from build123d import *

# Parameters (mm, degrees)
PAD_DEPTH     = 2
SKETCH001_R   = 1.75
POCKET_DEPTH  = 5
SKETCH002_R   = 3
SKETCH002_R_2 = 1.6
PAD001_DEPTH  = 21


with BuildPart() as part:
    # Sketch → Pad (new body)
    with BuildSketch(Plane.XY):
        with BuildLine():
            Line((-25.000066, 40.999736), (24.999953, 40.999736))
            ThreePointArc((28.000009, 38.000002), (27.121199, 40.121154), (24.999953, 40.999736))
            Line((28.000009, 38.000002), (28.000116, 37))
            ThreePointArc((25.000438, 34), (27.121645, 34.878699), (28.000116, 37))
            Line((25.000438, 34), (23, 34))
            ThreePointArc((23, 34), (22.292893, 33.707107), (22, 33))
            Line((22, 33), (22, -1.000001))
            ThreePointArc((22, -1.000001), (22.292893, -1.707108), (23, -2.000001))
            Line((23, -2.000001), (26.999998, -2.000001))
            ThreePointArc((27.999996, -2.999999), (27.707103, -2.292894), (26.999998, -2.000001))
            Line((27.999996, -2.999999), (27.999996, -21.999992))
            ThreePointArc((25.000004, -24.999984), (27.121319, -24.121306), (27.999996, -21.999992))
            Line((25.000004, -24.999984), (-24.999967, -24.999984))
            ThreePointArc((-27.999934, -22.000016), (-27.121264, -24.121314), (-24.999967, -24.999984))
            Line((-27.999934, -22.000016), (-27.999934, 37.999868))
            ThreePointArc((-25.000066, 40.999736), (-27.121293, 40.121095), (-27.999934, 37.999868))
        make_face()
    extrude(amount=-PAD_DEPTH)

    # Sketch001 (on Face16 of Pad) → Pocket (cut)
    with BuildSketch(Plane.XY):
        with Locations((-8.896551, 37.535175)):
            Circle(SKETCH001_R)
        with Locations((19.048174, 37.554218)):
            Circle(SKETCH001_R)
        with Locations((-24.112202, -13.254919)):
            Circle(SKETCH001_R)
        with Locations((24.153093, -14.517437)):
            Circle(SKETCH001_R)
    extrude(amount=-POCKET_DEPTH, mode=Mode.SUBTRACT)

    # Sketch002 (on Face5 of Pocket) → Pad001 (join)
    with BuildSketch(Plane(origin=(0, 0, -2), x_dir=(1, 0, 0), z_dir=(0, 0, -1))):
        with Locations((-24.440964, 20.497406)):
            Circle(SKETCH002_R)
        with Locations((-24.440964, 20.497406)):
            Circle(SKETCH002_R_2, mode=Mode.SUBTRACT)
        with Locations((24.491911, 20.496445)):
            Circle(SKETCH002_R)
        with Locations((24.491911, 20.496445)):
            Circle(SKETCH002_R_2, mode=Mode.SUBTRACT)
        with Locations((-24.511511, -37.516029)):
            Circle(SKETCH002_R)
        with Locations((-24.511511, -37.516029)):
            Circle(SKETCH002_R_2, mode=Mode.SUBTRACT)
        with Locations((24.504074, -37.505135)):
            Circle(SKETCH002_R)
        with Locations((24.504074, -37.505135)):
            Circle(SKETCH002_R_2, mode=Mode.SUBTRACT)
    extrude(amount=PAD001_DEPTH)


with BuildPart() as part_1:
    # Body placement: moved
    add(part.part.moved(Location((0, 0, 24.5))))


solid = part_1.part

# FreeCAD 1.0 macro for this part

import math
import FreeCAD as App
import Part
import Sketcher
Q = App.Units.Quantity

doc = App.newDocument("Part")
params = doc.addObject("Spreadsheet::Sheet", "Params")
for row, (alias, value) in enumerate([
    ("sketch1_radius", "0.999999 mm"),
    ("sketch1_width", "3.999998 mm"),
    ("sketch1_height", "34.000001 mm"),
    ("pad1_length", "2 mm"),
    ("sketch2_diameter", "3.5 mm"),
    ("pocket1_length", "5 mm"),
    ("sketch3_diameter", "6 mm"),
    ("sketch3_diameter2", "3.2 mm"),
    ("pad2_length", "21 mm"),
], start=1):
    params.set(f"A{row}", alias)
    params.set(f"B{row}", "=" + value)
    params.setAlias(f"B{row}", alias)

body = doc.addObject("PartDesign::Body", "Body")

# Sketch on XY plane
sketch1 = doc.addObject("Sketcher::SketchObject", "Sketch")
body.addObject(sketch1)
sketch1.AttachmentSupport = (doc.XY_Plane, [""])
sketch1.MapMode = "FlatFace"
sketch1.addGeometry(Part.LineSegment(App.Vector(24.999953, 40.999736, 0), App.Vector(-25.000066, 40.999736, 0)), False)
sketch1.addGeometry(Part.ArcOfCircle(Part.Circle(App.Vector(-25.000066, 37.999868, 0), App.Vector(0, 0, 1), 2.999868), math.radians(90), math.radians(180)), False)
sketch1.addGeometry(Part.LineSegment(App.Vector(-27.999934, 37.999868, 0), App.Vector(-27.999934, -22.000016, 0)), False)
sketch1.addGeometry(Part.ArcOfCircle(Part.Circle(App.Vector(-24.999967, -22.000017, 0), App.Vector(0, 0, 1), 2.999967), math.radians(179.999981), math.radians(269.999999)), False)
sketch1.addGeometry(Part.LineSegment(App.Vector(-24.999967, -24.999984, 0), App.Vector(25.000004, -24.999984, 0)), False)
sketch1.addGeometry(Part.ArcOfCircle(Part.Circle(App.Vector(25.000003, -21.999991, 0), App.Vector(0, 0, 1), 2.999993), math.radians(-89.999988), math.radians(-0.000012)), False)
sketch1.addGeometry(Part.LineSegment(App.Vector(27.999996, -21.999992, 0), App.Vector(27.999996, -2.999999, 0)), False)
sketch1.addGeometry(Part.ArcOfCircle(Part.Circle(App.Vector(26.999997, -3, 0), App.Vector(0, 0, 1), 0.999999), math.radians(0.000072), math.radians(89.999928)), False)
sketch1.addGeometry(Part.LineSegment(App.Vector(26.999998, -2.000001, 0), App.Vector(23, -2.000001, 0)), False)
sketch1.addGeometry(Part.ArcOfCircle(Part.Circle(App.Vector(22.999999, -1.000002, 0), App.Vector(0, 0, 1), 0.999999), math.radians(179.999957), math.radians(270.000043)), False)
sketch1.addGeometry(Part.LineSegment(App.Vector(22, -1.000001, 0), App.Vector(22, 33, 0)), False)
sketch1.addGeometry(Part.ArcOfCircle(Part.Circle(App.Vector(22.999999, 33.000001, 0), App.Vector(0, 0, 1), 0.999999), math.radians(89.999957), math.radians(180.000043)), False)
sketch1.addGeometry(Part.LineSegment(App.Vector(23, 34, 0), App.Vector(25.000438, 34, 0)), False)
sketch1.addGeometry(Part.ArcOfCircle(Part.Circle(App.Vector(25.000439, 36.999677, 0), App.Vector(0, 0, 1), 2.999677), math.radians(-90.000022), math.radians(0.006173)), False)
sketch1.addGeometry(Part.LineSegment(App.Vector(28.000116, 37, 0), App.Vector(28.000009, 38.000002, 0)), False)
sketch1.addGeometry(Part.ArcOfCircle(Part.Circle(App.Vector(24.999953, 37.99968, 0), App.Vector(0, 0, 1), 3.000056), math.radians(0.006146), math.radians(90.000004)), False)
sketch1.addConstraint(Sketcher.Constraint("Tangent", 0, 2, 1, 1))
sketch1.addConstraint(Sketcher.Constraint("Tangent", 1, 2, 2, 1))
sketch1.addConstraint(Sketcher.Constraint("Tangent", 2, 2, 3, 1))
sketch1.addConstraint(Sketcher.Constraint("Tangent", 3, 2, 4, 1))
sketch1.addConstraint(Sketcher.Constraint("Tangent", 4, 2, 5, 1))
sketch1.addConstraint(Sketcher.Constraint("Tangent", 5, 2, 6, 1))
sketch1.addConstraint(Sketcher.Constraint("Tangent", 6, 2, 7, 1))
sketch1.addConstraint(Sketcher.Constraint("Tangent", 7, 2, 8, 1))
sketch1.addConstraint(Sketcher.Constraint("Tangent", 8, 2, 9, 2))
sketch1.addConstraint(Sketcher.Constraint("Tangent", 9, 1, 10, 1))
sketch1.addConstraint(Sketcher.Constraint("Tangent", 10, 2, 11, 2))
sketch1.addConstraint(Sketcher.Constraint("Tangent", 11, 1, 12, 1))
sketch1.addConstraint(Sketcher.Constraint("Tangent", 12, 2, 13, 1))
sketch1.addConstraint(Sketcher.Constraint("Tangent", 13, 2, 14, 1))
sketch1.addConstraint(Sketcher.Constraint("Tangent", 14, 2, 15, 1))
sketch1.addConstraint(Sketcher.Constraint("Tangent", 15, 2, 0, 1))
sketch1.addConstraint(Sketcher.Constraint("Horizontal", 0))
sketch1.addConstraint(Sketcher.Constraint("Vertical", 2))
sketch1.addConstraint(Sketcher.Constraint("Horizontal", 4))
sketch1.addConstraint(Sketcher.Constraint("Vertical", 6))
sketch1.addConstraint(Sketcher.Constraint("Horizontal", 8))
sketch1.addConstraint(Sketcher.Constraint("Vertical", 10))
sketch1.addConstraint(Sketcher.Constraint("Horizontal", 12))
sketch1.addConstraint(Sketcher.Constraint("Equal", 7, 9))
sketch1.addConstraint(Sketcher.Constraint("Equal", 9, 11))
sketch1.addConstraint(Sketcher.Constraint("Radius", 7, Q("0.999999 mm")))
sketch1.addConstraint(Sketcher.Constraint("DistanceX", 8, 2, 8, 1, Q("3.999998 mm")))
sketch1.addConstraint(Sketcher.Constraint("DistanceY", 10, 1, 10, 2, Q("34.000001 mm")))
sketch1.addConstraint(Sketcher.Constraint("DistanceY", 7, 3, -1, 1, Q("3 mm")))
sketch1.addConstraint(Sketcher.Constraint("DistanceX", -1, 1, 9, 3, Q("22.999999 mm")))
sketch1.addConstraint(Sketcher.Constraint("DistanceY", -1, 1, 13, 2, Q("37 mm")))
sketch1.addConstraint(Sketcher.Constraint("Radius", 1, Q("2.999868 mm")))
sketch1.addConstraint(Sketcher.Constraint("Radius", 3, Q("2.999967 mm")))
sketch1.addConstraint(Sketcher.Constraint("Radius", 5, Q("2.999993 mm")))
sketch1.addConstraint(Sketcher.Constraint("Radius", 13, Q("2.999677 mm")))
sketch1.addConstraint(Sketcher.Constraint("Radius", 15, Q("3.000056 mm")))
sketch1.addConstraint(Sketcher.Constraint("DistanceX", 0, 2, 0, 1, Q("50.000019 mm")))
sketch1.addConstraint(Sketcher.Constraint("DistanceX", 4, 1, 4, 2, Q("49.999971 mm")))
sketch1.addConstraint(Sketcher.Constraint("DistanceY", 2, 2, 2, 1, Q("59.999884 mm")))
sketch1.addConstraint(Sketcher.Constraint("DistanceY", 6, 1, 6, 2, Q("18.999993 mm")))
sketch1.setExpression("Constraints[25]", "Params.sketch1_radius")
sketch1.setExpression("Constraints[26]", "Params.sketch1_width")
sketch1.setExpression("Constraints[27]", "Params.sketch1_height")
pad1 = doc.addObject("PartDesign::Pad", "Pad")
body.addObject(pad1)
pad1.Profile = sketch1
pad1.setExpression("Length", "Params.pad1_length")
pad1.Reversed = True

# Sketch on XY plane
sketch2 = doc.addObject("Sketcher::SketchObject", "Sketch001")
body.addObject(sketch2)
sketch2.AttachmentSupport = (doc.XY_Plane, [""])
sketch2.MapMode = "FlatFace"
sketch2.addGeometry(Part.Circle(App.Vector(-8.896551, 37.535175, 0), App.Vector(0, 0, 1), 1.75), False)
sketch2.addGeometry(Part.Circle(App.Vector(19.048174, 37.554218, 0), App.Vector(0, 0, 1), 1.75), False)
sketch2.addGeometry(Part.Circle(App.Vector(-24.112202, -13.254919, 0), App.Vector(0, 0, 1), 1.75), False)
sketch2.addGeometry(Part.Circle(App.Vector(24.153093, -14.517437, 0), App.Vector(0, 0, 1), 1.75), False)
sketch2.addConstraint(Sketcher.Constraint("Equal", 0, 1))
sketch2.addConstraint(Sketcher.Constraint("Equal", 1, 2))
sketch2.addConstraint(Sketcher.Constraint("Equal", 2, 3))
sketch2.addConstraint(Sketcher.Constraint("Diameter", 0, Q("3.5 mm")))
sketch2.addConstraint(Sketcher.Constraint("DistanceX", 2, 3, -1, 1, Q("24.112202 mm")))
sketch2.addConstraint(Sketcher.Constraint("DistanceX", 0, 3, -1, 1, Q("8.896551 mm")))
sketch2.addConstraint(Sketcher.Constraint("DistanceY", 2, 3, -1, 1, Q("13.254919 mm")))
sketch2.addConstraint(Sketcher.Constraint("DistanceX", 1, 3, 3, 3, Q("5.104919 mm")))
sketch2.addConstraint(Sketcher.Constraint("DistanceY", -1, 1, 0, 3, Q("37.535175 mm")))
sketch2.addConstraint(Sketcher.Constraint("DistanceX", -1, 1, 1, 3, Q("19.048174 mm")))
sketch2.addConstraint(Sketcher.Constraint("DistanceY", -1, 1, 1, 3, Q("37.554218 mm")))
sketch2.addConstraint(Sketcher.Constraint("DistanceY", 3, 3, -1, 1, Q("14.517437 mm")))
sketch2.setExpression("Constraints[3]", "Params.sketch2_diameter")
pocket1 = doc.addObject("PartDesign::Pocket", "Pocket")
body.addObject(pocket1)
pocket1.Profile = sketch2
pocket1.setExpression("Length", "Params.pocket1_length")

# Sketch on XY plane
sketch3 = doc.addObject("Sketcher::SketchObject", "Sketch002")
body.addObject(sketch3)
sketch3.AttachmentSupport = (doc.XY_Plane, [""])
sketch3.MapMode = "FlatFace"
sketch3.AttachmentOffset = App.Placement(App.Vector(0, 0, -2), App.Rotation())
sketch3.addGeometry(Part.Circle(App.Vector(-24.440964, -20.497406, 0), App.Vector(0, 0, 1), 3), False)
sketch3.addGeometry(Part.Circle(App.Vector(-24.440964, -20.497406, 0), App.Vector(0, 0, 1), 1.6), False)
sketch3.addGeometry(Part.Circle(App.Vector(24.491911, -20.496445, 0), App.Vector(0, 0, 1), 3), False)
sketch3.addGeometry(Part.Circle(App.Vector(24.491911, -20.496445, 0), App.Vector(0, 0, 1), 1.6), False)
sketch3.addGeometry(Part.Circle(App.Vector(-24.511511, 37.516029, 0), App.Vector(0, 0, 1), 3), False)
sketch3.addGeometry(Part.Circle(App.Vector(-24.511511, 37.516029, 0), App.Vector(0, 0, 1), 1.6), False)
sketch3.addGeometry(Part.Circle(App.Vector(24.504074, 37.505135, 0), App.Vector(0, 0, 1), 3), False)
sketch3.addGeometry(Part.Circle(App.Vector(24.504074, 37.505135, 0), App.Vector(0, 0, 1), 1.6), False)
sketch3.addConstraint(Sketcher.Constraint("Coincident", 1, 3, 0, 3))
sketch3.addConstraint(Sketcher.Constraint("Coincident", 3, 3, 2, 3))
sketch3.addConstraint(Sketcher.Constraint("Coincident", 5, 3, 4, 3))
sketch3.addConstraint(Sketcher.Constraint("Coincident", 7, 3, 6, 3))
sketch3.addConstraint(Sketcher.Constraint("Equal", 0, 2))
sketch3.addConstraint(Sketcher.Constraint("Equal", 1, 3))
sketch3.addConstraint(Sketcher.Constraint("Equal", 2, 4))
sketch3.addConstraint(Sketcher.Constraint("Equal", 3, 5))
sketch3.addConstraint(Sketcher.Constraint("Equal", 4, 6))
sketch3.addConstraint(Sketcher.Constraint("Equal", 5, 7))
sketch3.addConstraint(Sketcher.Constraint("Diameter", 0, Q("6 mm")))
sketch3.addConstraint(Sketcher.Constraint("Diameter", 1, Q("3.2 mm")))
sketch3.addConstraint(Sketcher.Constraint("DistanceX", -1, 1, 2, 3, Q("24.491911 mm")))
sketch3.addConstraint(Sketcher.Constraint("DistanceX", 4, 3, -1, 1, Q("24.511511 mm")))
sketch3.addConstraint(Sketcher.Constraint("DistanceY", -1, 1, 4, 3, Q("37.516029 mm")))
sketch3.addConstraint(Sketcher.Constraint("DistanceY", 0, 3, 2, 3, Q("0.000961 mm")))
sketch3.addConstraint(Sketcher.Constraint("DistanceY", 2, 3, 6, 3, Q("58.00158 mm")))
sketch3.addConstraint(Sketcher.Constraint("DistanceX", 0, 3, -1, 1, Q("24.440964 mm")))
sketch3.addConstraint(Sketcher.Constraint("DistanceY", 0, 3, -1, 1, Q("20.497406 mm")))
sketch3.addConstraint(Sketcher.Constraint("DistanceX", -1, 1, 6, 3, Q("24.504074 mm")))
sketch3.setExpression("Constraints[10]", "Params.sketch3_diameter")
sketch3.setExpression("Constraints[11]", "Params.sketch3_diameter2")
pad2 = doc.addObject("PartDesign::Pad", "Pad001")
body.addObject(pad2)
pad2.Profile = sketch3
pad2.setExpression("Length", "Params.pad2_length")
pad2.Reversed = True
body2 = doc.addObject("PartDesign::Body", "Body001")
doc.recompute()

body.Placement = App.Placement(App.Vector(0, 0, 24.5), App.Rotation(App.Vector(0, 0, 1), 0))
boolean = doc.addObject("PartDesign::Boolean", "Boolean")
body2.addObject(boolean)
boolean.Type = "Fuse"
boolean.addObjects([body])

doc.recompute()
